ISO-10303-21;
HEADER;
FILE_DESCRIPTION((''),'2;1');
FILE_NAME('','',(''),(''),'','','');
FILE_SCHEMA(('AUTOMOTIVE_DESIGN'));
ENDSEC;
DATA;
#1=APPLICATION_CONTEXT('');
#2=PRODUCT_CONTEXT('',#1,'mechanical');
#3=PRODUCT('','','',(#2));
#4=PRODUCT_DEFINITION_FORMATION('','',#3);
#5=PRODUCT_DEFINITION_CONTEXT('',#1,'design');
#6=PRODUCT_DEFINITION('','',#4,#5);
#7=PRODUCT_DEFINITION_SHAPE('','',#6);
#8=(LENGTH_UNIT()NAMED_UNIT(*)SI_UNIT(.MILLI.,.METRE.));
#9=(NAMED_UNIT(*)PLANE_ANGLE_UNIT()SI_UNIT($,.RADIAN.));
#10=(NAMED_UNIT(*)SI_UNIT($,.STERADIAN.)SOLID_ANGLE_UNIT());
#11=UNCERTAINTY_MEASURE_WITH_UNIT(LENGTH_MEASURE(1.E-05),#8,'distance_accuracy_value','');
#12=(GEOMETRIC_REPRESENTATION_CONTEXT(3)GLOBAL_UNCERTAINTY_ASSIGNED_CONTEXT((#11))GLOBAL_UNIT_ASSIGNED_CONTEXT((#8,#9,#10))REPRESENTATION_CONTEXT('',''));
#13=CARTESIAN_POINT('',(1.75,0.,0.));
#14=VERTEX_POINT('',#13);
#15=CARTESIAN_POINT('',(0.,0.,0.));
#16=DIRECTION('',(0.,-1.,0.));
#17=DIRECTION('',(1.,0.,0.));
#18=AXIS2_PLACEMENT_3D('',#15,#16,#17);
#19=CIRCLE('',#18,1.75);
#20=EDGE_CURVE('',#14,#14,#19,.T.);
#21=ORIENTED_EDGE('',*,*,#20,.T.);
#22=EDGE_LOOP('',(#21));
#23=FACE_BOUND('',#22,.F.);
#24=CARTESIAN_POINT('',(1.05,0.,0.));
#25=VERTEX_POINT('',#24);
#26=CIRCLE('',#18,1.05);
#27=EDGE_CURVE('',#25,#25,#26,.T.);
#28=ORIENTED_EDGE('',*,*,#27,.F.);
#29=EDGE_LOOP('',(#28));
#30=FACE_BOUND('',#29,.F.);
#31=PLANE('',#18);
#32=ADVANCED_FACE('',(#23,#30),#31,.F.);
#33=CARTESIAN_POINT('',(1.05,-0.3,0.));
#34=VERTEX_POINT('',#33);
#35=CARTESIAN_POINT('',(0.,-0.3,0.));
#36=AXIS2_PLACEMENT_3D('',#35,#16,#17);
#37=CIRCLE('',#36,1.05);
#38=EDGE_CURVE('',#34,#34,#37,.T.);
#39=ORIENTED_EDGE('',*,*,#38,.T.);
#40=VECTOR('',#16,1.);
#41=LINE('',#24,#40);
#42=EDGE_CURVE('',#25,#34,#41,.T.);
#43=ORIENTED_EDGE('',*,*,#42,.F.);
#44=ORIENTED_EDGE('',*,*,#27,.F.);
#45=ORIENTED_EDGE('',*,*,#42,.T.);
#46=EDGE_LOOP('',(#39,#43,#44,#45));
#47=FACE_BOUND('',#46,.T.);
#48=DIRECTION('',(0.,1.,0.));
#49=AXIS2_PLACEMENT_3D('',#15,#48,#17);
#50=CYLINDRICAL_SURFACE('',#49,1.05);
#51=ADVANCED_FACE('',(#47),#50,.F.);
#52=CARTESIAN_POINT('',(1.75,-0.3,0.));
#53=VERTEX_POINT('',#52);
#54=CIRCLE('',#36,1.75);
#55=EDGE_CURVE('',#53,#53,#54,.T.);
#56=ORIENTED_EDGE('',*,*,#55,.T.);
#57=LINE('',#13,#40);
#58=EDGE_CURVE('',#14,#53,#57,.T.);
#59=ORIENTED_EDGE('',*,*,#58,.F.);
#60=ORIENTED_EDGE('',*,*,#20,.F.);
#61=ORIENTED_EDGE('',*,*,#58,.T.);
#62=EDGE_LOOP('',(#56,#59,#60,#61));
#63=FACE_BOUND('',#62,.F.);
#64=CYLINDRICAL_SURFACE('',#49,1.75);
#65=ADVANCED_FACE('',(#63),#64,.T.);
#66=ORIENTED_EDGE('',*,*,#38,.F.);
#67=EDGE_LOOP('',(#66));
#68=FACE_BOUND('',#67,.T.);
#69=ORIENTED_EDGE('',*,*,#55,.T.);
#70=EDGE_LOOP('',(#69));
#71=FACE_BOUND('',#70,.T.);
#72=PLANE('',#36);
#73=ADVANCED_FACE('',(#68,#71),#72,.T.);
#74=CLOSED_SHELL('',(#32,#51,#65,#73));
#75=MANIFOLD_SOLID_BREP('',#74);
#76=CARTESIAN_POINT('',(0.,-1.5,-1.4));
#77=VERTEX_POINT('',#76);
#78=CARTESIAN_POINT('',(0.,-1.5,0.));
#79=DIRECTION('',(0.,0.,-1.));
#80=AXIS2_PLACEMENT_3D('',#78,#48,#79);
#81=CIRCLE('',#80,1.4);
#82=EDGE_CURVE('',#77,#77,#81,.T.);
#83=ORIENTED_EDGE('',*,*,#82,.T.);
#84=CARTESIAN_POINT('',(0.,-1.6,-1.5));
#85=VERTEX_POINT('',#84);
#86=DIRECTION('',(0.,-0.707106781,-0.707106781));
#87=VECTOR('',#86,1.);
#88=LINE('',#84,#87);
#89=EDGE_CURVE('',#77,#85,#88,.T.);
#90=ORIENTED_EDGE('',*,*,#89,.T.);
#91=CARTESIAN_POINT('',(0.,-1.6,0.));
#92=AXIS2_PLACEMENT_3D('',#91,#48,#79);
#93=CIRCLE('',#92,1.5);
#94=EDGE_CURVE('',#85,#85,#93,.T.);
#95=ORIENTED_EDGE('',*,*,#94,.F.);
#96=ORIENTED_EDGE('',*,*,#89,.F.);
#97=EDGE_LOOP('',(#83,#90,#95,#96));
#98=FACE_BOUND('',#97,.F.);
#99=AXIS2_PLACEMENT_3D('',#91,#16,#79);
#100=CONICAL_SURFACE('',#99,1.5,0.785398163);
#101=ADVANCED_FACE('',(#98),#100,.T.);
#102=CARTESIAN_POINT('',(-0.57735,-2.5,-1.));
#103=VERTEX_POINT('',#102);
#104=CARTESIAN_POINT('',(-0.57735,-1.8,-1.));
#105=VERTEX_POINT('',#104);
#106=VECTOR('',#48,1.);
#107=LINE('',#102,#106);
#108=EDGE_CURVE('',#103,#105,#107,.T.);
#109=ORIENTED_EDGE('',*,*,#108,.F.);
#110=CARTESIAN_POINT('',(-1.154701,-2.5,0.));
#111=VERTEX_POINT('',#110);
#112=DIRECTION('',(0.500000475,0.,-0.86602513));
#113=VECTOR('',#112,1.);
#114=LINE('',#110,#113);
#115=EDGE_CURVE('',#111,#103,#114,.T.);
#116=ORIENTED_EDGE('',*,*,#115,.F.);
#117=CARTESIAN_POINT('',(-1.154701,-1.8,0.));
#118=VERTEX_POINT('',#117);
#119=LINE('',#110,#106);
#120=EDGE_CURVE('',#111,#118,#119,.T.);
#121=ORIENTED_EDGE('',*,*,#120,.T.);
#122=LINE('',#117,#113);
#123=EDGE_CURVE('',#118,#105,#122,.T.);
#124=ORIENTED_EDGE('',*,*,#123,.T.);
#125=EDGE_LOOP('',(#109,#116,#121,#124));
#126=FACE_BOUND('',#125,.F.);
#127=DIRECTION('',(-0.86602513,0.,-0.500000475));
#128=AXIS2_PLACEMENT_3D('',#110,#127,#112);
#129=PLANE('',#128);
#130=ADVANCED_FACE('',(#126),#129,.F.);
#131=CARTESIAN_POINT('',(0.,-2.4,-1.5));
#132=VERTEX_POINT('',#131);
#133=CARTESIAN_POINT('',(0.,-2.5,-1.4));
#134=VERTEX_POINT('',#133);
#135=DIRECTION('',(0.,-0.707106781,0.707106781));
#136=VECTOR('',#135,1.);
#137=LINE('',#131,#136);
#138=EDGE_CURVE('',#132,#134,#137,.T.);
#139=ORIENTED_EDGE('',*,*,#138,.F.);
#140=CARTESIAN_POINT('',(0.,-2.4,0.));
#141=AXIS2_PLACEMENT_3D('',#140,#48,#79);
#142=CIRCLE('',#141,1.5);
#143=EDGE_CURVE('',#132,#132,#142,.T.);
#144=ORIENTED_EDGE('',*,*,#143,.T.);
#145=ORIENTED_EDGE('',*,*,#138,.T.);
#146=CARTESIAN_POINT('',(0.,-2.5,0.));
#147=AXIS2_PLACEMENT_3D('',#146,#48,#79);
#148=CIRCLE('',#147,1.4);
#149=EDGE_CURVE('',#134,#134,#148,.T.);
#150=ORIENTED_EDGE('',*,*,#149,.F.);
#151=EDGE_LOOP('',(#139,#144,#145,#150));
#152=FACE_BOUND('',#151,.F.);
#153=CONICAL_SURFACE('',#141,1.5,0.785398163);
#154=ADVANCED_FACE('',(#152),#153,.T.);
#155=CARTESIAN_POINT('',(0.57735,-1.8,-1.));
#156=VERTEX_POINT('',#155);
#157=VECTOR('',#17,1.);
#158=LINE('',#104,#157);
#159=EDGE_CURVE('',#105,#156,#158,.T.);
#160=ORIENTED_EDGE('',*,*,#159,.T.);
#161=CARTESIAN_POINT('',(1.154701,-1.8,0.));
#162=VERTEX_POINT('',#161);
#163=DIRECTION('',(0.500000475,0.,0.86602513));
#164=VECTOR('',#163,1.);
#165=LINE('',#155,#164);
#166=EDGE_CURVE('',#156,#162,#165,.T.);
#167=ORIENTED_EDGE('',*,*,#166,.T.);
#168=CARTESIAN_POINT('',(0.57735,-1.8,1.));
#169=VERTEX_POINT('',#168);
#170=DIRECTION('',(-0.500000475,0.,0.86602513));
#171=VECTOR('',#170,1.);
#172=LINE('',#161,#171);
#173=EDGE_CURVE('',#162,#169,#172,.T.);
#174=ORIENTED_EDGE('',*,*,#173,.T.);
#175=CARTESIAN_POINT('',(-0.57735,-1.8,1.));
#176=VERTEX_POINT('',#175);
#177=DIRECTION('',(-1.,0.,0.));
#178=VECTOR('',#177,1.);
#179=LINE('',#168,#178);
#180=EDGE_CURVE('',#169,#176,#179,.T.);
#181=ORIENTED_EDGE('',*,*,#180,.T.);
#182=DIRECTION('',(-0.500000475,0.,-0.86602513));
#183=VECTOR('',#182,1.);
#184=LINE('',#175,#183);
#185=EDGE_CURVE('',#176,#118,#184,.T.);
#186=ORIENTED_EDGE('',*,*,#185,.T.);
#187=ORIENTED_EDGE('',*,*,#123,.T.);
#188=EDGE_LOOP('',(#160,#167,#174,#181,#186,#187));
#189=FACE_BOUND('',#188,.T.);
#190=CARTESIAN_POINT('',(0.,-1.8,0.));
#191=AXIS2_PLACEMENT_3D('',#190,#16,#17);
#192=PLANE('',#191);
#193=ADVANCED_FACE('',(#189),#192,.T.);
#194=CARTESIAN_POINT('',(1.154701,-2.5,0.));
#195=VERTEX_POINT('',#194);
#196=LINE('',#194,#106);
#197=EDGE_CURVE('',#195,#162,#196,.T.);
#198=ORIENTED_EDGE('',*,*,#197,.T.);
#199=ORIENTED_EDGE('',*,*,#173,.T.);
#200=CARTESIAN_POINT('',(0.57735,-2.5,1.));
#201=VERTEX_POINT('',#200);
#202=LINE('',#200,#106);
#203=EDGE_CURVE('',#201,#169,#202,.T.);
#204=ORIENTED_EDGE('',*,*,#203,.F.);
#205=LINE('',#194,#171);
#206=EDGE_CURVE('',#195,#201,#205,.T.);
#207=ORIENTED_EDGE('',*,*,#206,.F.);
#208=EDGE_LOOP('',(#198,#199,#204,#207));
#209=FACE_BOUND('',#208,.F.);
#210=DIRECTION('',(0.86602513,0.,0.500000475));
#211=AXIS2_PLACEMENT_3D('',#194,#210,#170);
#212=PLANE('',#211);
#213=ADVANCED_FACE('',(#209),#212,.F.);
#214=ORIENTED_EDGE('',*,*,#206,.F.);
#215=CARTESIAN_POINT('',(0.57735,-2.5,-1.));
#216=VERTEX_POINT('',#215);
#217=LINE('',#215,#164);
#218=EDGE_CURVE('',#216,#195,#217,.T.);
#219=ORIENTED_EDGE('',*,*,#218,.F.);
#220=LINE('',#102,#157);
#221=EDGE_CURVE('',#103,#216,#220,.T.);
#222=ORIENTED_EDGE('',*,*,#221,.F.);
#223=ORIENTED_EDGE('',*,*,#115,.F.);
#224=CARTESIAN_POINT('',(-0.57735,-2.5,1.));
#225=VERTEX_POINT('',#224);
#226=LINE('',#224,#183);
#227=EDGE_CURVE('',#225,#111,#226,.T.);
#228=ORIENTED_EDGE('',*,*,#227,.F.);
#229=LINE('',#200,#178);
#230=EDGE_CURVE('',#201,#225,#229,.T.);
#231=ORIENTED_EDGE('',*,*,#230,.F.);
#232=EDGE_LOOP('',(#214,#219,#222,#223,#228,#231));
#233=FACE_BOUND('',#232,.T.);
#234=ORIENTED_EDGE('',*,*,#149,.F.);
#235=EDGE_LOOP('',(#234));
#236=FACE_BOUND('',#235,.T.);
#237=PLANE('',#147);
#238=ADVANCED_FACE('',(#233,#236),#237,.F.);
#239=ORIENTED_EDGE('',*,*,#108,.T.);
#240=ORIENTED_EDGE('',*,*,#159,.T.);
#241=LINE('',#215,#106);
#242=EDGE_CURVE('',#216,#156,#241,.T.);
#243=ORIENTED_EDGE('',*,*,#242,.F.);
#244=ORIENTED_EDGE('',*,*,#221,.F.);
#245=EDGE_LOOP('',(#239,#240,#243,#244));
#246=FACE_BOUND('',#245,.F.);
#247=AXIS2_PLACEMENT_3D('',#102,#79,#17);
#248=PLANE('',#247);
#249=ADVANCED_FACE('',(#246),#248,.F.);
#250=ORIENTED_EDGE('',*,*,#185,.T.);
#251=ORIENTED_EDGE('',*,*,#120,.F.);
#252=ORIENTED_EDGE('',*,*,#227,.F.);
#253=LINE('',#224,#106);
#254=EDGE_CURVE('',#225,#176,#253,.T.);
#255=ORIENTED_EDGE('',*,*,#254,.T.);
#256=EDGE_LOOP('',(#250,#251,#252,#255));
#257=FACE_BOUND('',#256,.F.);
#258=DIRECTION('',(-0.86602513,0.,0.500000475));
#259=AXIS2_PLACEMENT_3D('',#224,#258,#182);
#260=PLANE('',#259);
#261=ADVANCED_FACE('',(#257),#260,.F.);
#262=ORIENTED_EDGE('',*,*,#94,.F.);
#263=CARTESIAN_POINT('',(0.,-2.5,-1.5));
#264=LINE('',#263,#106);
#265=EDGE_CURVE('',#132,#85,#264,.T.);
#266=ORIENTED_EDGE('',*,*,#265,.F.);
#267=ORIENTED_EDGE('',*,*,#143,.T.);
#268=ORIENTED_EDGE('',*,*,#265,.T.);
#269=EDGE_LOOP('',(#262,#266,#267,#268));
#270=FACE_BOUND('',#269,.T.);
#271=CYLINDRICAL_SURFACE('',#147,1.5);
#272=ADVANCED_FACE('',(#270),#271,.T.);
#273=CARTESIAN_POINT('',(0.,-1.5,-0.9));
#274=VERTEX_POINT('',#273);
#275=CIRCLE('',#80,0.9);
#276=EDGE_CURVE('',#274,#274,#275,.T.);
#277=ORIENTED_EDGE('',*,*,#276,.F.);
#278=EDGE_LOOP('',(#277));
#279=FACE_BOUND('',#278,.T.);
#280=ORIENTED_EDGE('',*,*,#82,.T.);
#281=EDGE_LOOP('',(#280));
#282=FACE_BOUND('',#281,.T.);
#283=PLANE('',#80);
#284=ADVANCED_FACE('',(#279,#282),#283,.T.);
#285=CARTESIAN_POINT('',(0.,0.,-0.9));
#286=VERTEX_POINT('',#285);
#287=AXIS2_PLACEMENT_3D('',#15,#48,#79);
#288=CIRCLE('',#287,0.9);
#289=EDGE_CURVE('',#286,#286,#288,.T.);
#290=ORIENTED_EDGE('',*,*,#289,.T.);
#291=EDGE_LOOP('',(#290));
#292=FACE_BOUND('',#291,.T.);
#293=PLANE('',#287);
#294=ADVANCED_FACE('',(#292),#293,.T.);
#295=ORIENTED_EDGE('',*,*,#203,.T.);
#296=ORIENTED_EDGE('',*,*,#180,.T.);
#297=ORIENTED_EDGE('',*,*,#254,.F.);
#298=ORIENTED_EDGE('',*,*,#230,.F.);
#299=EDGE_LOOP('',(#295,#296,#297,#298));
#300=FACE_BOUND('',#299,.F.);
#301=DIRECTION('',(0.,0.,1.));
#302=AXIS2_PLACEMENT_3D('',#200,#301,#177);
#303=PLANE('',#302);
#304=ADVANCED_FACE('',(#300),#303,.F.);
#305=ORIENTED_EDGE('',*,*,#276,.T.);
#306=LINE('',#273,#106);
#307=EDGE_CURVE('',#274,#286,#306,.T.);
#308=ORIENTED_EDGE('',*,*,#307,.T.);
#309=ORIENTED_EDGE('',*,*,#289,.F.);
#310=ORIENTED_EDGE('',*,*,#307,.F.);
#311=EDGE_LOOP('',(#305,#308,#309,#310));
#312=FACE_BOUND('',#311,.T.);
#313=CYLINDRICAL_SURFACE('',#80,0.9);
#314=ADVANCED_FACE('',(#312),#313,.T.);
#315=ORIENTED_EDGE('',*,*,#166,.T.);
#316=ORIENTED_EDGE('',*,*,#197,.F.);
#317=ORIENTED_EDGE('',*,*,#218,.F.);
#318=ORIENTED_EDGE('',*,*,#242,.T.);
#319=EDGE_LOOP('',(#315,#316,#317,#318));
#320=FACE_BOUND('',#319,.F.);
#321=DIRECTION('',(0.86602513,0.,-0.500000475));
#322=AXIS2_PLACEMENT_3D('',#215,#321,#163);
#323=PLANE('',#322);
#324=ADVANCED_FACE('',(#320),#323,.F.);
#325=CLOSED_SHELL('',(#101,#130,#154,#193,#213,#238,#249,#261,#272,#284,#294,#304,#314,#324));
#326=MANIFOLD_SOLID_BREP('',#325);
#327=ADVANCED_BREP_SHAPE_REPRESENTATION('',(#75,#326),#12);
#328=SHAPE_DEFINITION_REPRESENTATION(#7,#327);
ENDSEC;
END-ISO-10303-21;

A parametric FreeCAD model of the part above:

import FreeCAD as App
import Part
import Sketcher
from FreeCAD import Vector


def edges_at(feature, points):
    """Names of the edges that pass closest to the given points."""
    edges = feature.Shape.Edges
    near = lambda p: min(range(len(edges)), key=lambda i: edges[i].distToShape(Part.Vertex(*p))[0])
    return sorted({f"Edge{near(p) + 1}" for p in points})


def add_polygon(sketch, points):
    """Adds a closed chain of lines whose ends are joined by coincident constraints."""
    first, n = sketch.GeometryCount, len(points)
    for a, b in zip(points, points[1:] + points[:1]):
        sketch.addGeometry(Part.LineSegment(App.Vector(*a, 0), App.Vector(*b, 0)), False)
    for i in range(n):
        sketch.addConstraint(Sketcher.Constraint("Coincident", first + i, 2, first + (i + 1) % n, 1))

doc = App.newDocument("Part")
body = doc.addObject("PartDesign::Body", "Body")

# Sketch on XZ plane
sketch1 = body.newObject("Sketcher::SketchObject", "Sketch")
sketch1.AttachmentSupport = (doc.getObject("XZ_Plane"), [""])
sketch1.MapMode = "FlatFace"
sketch1.addGeometry([
    Part.Circle(Vector(0, 0, 0), Vector(0, 0, 1), 1.75),
    Part.Circle(Vector(0, 0, 0), Vector(0, 0, 1), 1.05),
], False)
sketch1.addConstraint([
    Sketcher.Constraint("Coincident", 0, 3, -1, 1),
    Sketcher.Constraint("Coincident", 1, 3, -1, 1),
    Sketcher.Constraint("Diameter", 0, 3.5),
    Sketcher.Constraint("Diameter", 1, 2.1),
])
pad1 = body.newObject("PartDesign::Pad", "Pad")
pad1.Profile = sketch1
pad1.Length = 0.3
body2 = doc.addObject("PartDesign::Body", "Body001")

# Sketch on YZ plane
sketch2 = body2.newObject("Sketcher::SketchObject", "Sketch001")
sketch2.AttachmentSupport = (doc.getObject("YZ_Plane001"), [""])
sketch2.MapMode = "FlatFace"
add_polygon(sketch2, [(0, -0.9), (0, 0), (-2.5, 0), (-2.5, -1.5), (-1.5, -1.5), (-1.5, -0.9)])  # lines 0-5
sketch2.addConstraint([
    Sketcher.Constraint("Vertical", 0),
    Sketcher.Constraint("Horizontal", 1),
    Sketcher.Constraint("Vertical", 2),
    Sketcher.Constraint("Horizontal", 3),
    Sketcher.Constraint("Vertical", 4),
    Sketcher.Constraint("Horizontal", 5),
    Sketcher.Constraint("Coincident", 0, 2, -1, 1),
    Sketcher.Constraint("Equal", 5, 2),
    Sketcher.Constraint("DistanceX", 3, 1, 3, 2, 1.0),
    Sketcher.Constraint("DistanceX", 1, 2, 1, 1, 2.5),
    Sketcher.Constraint("DistanceY", 0, 1, 0, 2, 0.9),
])
revolution = body2.newObject("PartDesign::Revolution", "Revolution")
revolution.Profile = sketch2
revolution.ReferenceAxis = (sketch2, ["H_Axis"])
revolution.Angle = 360

# Sketch on XZ plane
sketch3 = body2.newObject("Sketcher::SketchObject", "Sketch002")
sketch3.AttachmentSupport = (doc.getObject("XZ_Plane001"), [""])
sketch3.MapMode = "FlatFace"
sketch3.AttachmentOffset = App.Placement(Vector(0, 0, 2.5), App.Rotation())
add_polygon(sketch3, [(1.154701, 0), (0.57735, 1), (-0.57735, 1), (-1.154701, 0), (-0.57735, -1), (0.57735, -1)])  # lines 0-5
sketch3.addConstraint([
    Sketcher.Constraint("Horizontal", 1),
    Sketcher.Constraint("Horizontal", 4),
    Sketcher.Constraint("Symmetric", 0, 2, 3, 2, -1, 1),
    Sketcher.Constraint("Symmetric", 2, 2, 5, 2, -1, 1),
    Sketcher.Constraint("PointOnObject", 2, 2, -1),
    Sketcher.Constraint("Parallel", 2, 5),
    Sketcher.Constraint("Vertical", 1, 2, 3, 2),
    Sketcher.Constraint("DistanceY", -1, 1, 0, 2, 1.0),
    Sketcher.Constraint("DistanceX", 1, 2, 1, 1, 1.1547),
    Sketcher.Constraint("Distance", 0, 1.154701),
])
pocket1 = body2.newObject("PartDesign::Pocket", "Pocket")
pocket1.Profile = sketch3
pocket1.Length = 0.7
doc.recompute()

chamfer = body2.newObject("PartDesign::Chamfer", "Chamfer")
chamfer.Base = (pocket1, edges_at(pocket1, [(0, -2.5, 1.5), (0, -1.5, 1.5)]))
chamfer.Size = 0.1

doc.recompute()
